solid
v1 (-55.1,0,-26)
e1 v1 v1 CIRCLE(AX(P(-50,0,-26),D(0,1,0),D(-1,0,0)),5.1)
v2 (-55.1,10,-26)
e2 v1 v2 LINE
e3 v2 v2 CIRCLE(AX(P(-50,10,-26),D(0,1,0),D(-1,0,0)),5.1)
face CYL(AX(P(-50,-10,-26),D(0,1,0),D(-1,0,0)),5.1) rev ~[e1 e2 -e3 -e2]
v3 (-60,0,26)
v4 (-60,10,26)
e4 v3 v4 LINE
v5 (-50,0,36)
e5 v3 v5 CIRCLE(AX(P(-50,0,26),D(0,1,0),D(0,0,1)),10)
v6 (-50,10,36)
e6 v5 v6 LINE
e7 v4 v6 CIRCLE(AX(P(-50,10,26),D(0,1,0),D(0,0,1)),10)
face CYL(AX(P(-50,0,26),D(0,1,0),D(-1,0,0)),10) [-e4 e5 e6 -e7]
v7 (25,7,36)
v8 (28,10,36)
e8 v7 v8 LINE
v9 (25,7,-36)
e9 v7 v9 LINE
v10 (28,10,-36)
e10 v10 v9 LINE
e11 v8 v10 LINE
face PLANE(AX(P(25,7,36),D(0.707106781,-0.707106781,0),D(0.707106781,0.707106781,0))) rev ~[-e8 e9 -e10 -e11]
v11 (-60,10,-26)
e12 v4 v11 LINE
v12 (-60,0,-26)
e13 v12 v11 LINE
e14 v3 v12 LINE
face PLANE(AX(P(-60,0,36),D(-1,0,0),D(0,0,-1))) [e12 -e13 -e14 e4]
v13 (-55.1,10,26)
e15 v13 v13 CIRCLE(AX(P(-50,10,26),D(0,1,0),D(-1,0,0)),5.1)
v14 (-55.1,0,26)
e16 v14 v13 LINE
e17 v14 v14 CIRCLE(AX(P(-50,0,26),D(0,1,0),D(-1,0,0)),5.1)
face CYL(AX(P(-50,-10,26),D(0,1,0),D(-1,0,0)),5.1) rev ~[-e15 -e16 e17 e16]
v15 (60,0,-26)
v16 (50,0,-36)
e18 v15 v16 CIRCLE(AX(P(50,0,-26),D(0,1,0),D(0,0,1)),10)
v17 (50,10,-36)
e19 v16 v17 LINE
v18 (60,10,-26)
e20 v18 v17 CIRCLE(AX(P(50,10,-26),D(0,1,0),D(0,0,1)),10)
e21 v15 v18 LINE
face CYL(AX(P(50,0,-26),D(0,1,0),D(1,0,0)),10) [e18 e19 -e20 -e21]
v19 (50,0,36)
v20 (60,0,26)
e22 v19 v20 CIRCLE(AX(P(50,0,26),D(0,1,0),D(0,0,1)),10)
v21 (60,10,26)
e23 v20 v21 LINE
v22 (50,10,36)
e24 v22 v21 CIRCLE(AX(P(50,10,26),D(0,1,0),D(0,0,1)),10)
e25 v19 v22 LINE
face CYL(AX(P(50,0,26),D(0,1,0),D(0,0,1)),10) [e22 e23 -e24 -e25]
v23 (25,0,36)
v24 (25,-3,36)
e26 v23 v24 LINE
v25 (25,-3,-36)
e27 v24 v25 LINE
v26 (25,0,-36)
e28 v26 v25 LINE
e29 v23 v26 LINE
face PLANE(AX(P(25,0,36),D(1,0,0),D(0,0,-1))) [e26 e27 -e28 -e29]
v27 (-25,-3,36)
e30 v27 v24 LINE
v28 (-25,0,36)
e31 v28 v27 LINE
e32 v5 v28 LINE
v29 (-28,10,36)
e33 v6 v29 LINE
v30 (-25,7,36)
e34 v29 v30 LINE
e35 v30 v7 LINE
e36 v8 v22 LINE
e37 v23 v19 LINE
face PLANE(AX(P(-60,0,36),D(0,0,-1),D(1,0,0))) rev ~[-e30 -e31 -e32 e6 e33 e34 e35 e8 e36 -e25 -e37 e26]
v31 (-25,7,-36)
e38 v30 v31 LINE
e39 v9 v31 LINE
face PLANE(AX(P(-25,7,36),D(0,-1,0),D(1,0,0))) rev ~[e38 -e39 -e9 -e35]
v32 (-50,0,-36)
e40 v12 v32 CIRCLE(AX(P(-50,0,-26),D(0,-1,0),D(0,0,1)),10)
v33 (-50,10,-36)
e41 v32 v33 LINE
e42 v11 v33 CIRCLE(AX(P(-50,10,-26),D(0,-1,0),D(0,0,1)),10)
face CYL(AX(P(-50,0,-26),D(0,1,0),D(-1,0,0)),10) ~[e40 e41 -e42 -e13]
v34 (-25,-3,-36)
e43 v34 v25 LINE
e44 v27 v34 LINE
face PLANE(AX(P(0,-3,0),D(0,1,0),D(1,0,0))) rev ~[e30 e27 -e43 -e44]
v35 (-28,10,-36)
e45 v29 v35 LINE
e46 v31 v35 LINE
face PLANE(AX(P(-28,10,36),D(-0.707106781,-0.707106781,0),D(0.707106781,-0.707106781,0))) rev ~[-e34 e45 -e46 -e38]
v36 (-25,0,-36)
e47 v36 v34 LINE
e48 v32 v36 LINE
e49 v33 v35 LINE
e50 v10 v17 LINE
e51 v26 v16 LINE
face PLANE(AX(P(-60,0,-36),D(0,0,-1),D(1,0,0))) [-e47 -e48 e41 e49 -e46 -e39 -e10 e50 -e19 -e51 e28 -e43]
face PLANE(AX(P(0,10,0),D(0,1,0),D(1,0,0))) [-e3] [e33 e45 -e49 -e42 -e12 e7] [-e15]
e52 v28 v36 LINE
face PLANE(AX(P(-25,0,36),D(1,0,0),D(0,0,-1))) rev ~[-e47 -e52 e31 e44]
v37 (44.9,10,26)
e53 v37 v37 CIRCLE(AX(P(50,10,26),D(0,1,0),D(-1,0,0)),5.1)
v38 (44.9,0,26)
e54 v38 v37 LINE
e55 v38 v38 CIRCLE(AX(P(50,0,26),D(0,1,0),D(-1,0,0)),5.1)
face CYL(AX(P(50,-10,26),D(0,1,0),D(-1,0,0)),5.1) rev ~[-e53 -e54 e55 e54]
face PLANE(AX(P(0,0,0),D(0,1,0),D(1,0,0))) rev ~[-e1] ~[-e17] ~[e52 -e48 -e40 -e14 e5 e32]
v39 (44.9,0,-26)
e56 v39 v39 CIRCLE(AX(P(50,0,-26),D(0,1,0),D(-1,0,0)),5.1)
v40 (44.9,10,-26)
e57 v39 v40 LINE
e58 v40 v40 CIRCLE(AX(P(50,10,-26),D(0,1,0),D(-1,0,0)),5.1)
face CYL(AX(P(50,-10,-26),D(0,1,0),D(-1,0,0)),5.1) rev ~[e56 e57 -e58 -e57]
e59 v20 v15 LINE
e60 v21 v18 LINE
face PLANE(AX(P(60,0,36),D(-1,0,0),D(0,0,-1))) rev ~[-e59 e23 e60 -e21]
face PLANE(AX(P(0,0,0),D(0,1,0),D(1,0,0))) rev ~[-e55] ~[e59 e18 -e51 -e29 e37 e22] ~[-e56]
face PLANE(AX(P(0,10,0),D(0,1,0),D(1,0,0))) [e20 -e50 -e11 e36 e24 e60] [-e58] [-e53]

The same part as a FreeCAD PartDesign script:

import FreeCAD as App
import Part
import Sketcher
Q = App.Units.Quantity


def edges_at(feature, points):
    """Names of the edges that pass closest to the given points."""
    edges = feature.Shape.Edges
    near = lambda p: min(range(len(edges)), key=lambda i: edges[i].distToShape(Part.Vertex(*p))[0])
    return sorted({f"Edge{near(p) + 1}" for p in points})

doc = App.newDocument("Part")
body = doc.addObject("PartDesign::Body", "Body")

sketch1 = body.newObject("Sketcher::SketchObject", "Sketch")
sketch1.AttachmentSupport = (doc.getObject("XZ_Plane"), [""])
sketch1.MapMode = "FlatFace"
sketch1.addGeometry([
    Part.LineSegment(App.Vector(-60, -36, 0), App.Vector(-60, 36, 0)),
    Part.LineSegment(App.Vector(-60, 36, 0), App.Vector(60, 36, 0)),
    Part.LineSegment(App.Vector(60, 36, 0), App.Vector(60, -36, 0)),
    Part.LineSegment(App.Vector(60, -36, 0), App.Vector(-60, -36, 0)),
], False)
sketch1.addConstraint([
    Sketcher.Constraint("Coincident", 0, 2, 1, 1),
    Sketcher.Constraint("Coincident", 1, 2, 2, 1),
    Sketcher.Constraint("Coincident", 2, 2, 3, 1),
    Sketcher.Constraint("Coincident", 3, 2, 0, 1),
    Sketcher.Constraint("Vertical", 0),
    Sketcher.Constraint("Horizontal", 1),
    Sketcher.Constraint("Vertical", 2),
    Sketcher.Constraint("Horizontal", 3),
    Sketcher.Constraint("Symmetric", 0, 2, 2, 2, -1, 1),
    Sketcher.Constraint("DistanceX", 1, 1, 1, 2, Q("120 mm")),
    Sketcher.Constraint("DistanceY", 0, 1, 0, 2, Q("72 mm")),
])
pad1 = body.newObject("PartDesign::Pad", "Pad")
pad1.Profile = sketch1
pad1.Length = 10
pad1.Reversed = True
doc.recompute()

fillet = body.newObject("PartDesign::Fillet", "Fillet")
fillet.Base = (pad1, edges_at(pad1, [
    (60, 5, 36),
    (-60, 5, 36),
    (-60, 5, -36),
    (60, 5, -36),
]))
fillet.Radius = 10

sketch2 = body.newObject("Sketcher::SketchObject", "Sketch001")
sketch2.AttachmentSupport = (doc.getObject("XZ_Plane"), [""])
sketch2.MapMode = "FlatFace"
sketch2.addGeometry([
    Part.Circle(App.Vector(50, -26, 0), App.Vector(0, 0, 1), 5),
    Part.Circle(App.Vector(50, 26, 0), App.Vector(0, 0, 1), 5),
    Part.Circle(App.Vector(-50, 26, 0), App.Vector(0, 0, 1), 5),
    Part.Circle(App.Vector(-50, -26, 0), App.Vector(0, 0, 1), 5),
], False)
sketch2.addConstraint([
    Sketcher.Constraint("Equal", 0, 1),
    Sketcher.Constraint("Equal", 1, 2),
    Sketcher.Constraint("Equal", 2, 3),
    Sketcher.Constraint("Symmetric", 0, 3, 2, 3, -1, 1),
    Sketcher.Constraint("Symmetric", 1, 3, 3, 3, -1, 1),
    Sketcher.Constraint("Symmetric", 1, 3, 2, 3, -2),
    Sketcher.Constraint("Diameter", 0, Q("10.2 mm")),
    Sketcher.Constraint("DistanceX", -1, 1, 0, 3, Q("50 mm")),
    Sketcher.Constraint("DistanceY", 0, 3, -1, 1, Q("26 mm")),
])
doc.recompute()
hole = body.newObject("PartDesign::Hole", "Hole")
hole.Profile = sketch2
hole.ThreadType = "None"
hole.Diameter = 10.2
hole.DepthType = "Dimension"
hole.Depth = 10
hole.DrillPoint = "Flat"

sketch3 = body.newObject("Sketcher::SketchObject", "Sketch002")
sketch3.AttachmentSupport = (doc.getObject("XZ_Plane"), [""])
sketch3.MapMode = "FlatFace"
sketch3.addGeometry([
    Part.LineSegment(App.Vector(-25, -36, 0), App.Vector(-25, 36, 0)),
    Part.LineSegment(App.Vector(-25, 36, 0), App.Vector(25, 36, 0)),
    Part.LineSegment(App.Vector(25, 36, 0), App.Vector(25, -36, 0)),
    Part.LineSegment(App.Vector(25, -36, 0), App.Vector(-25, -36, 0)),
], False)
sketch3.addConstraint([
    Sketcher.Constraint("Coincident", 0, 2, 1, 1),
    Sketcher.Constraint("Coincident", 1, 2, 2, 1),
    Sketcher.Constraint("Coincident", 2, 2, 3, 1),
    Sketcher.Constraint("Coincident", 3, 2, 0, 1),
    Sketcher.Constraint("Vertical", 0),
    Sketcher.Constraint("Horizontal", 1),
    Sketcher.Constraint("Vertical", 2),
    Sketcher.Constraint("Horizontal", 3),
    Sketcher.Constraint("Symmetric", 0, 2, 2, 2, -1, 1),
    Sketcher.Constraint("DistanceX", 1, 1, 1, 2, Q("50 mm")),
    Sketcher.Constraint("DistanceY", 0, 1, 0, 2, Q("72 mm")),
])
pad2 = body.newObject("PartDesign::Pad", "Pad001")
pad2.Profile = sketch3
pad2.Length = 3

sketch4 = body.newObject("Sketcher::SketchObject", "Sketch003")
sketch4.AttachmentSupport = (doc.getObject("XY_Plane"), [""])
sketch4.MapMode = "FlatFace"
sketch4.AttachmentOffset = App.Placement(App.Vector(0, 0, 36), App.Rotation())
sketch4.addGeometry([
    Part.LineSegment(App.Vector(-28, 10, 0), App.Vector(-25, 7, 0)),
    Part.LineSegment(App.Vector(-25, 7, 0), App.Vector(25, 7, 0)),
    Part.LineSegment(App.Vector(25, 7, 0), App.Vector(28, 10, 0)),
    Part.LineSegment(App.Vector(28, 10, 0), App.Vector(-28, 10, 0)),
], False)
sketch4.addConstraint([
    Sketcher.Constraint("Coincident", 0, 2, 1, 1),
    Sketcher.Constraint("Coincident", 1, 2, 2, 1),
    Sketcher.Constraint("Coincident", 2, 2, 3, 1),
    Sketcher.Constraint("Coincident", 3, 2, 0, 1),
    Sketcher.Constraint("Horizontal", 1),
    Sketcher.Constraint("Horizontal", 3),
    Sketcher.Constraint("Perpendicular", 0, 2),
    Sketcher.Constraint("Equal", 0, 2),
    Sketcher.Constraint("DistanceX", 1, 1, 1, 2, Q("50 mm")),
    Sketcher.Constraint("DistanceX", 3, 2, 3, 1, Q("56 mm")),
    Sketcher.Constraint("DistanceX", 0, 2, -1, 1, Q("25 mm")),
    Sketcher.Constraint("DistanceY", -1, 1, 0, 2, Q("7 mm")),
])
pocket1 = body.newObject("PartDesign::Pocket", "Pocket")
pocket1.Profile = sketch4
pocket1.Type = "ThroughAll"

doc.recompute()
